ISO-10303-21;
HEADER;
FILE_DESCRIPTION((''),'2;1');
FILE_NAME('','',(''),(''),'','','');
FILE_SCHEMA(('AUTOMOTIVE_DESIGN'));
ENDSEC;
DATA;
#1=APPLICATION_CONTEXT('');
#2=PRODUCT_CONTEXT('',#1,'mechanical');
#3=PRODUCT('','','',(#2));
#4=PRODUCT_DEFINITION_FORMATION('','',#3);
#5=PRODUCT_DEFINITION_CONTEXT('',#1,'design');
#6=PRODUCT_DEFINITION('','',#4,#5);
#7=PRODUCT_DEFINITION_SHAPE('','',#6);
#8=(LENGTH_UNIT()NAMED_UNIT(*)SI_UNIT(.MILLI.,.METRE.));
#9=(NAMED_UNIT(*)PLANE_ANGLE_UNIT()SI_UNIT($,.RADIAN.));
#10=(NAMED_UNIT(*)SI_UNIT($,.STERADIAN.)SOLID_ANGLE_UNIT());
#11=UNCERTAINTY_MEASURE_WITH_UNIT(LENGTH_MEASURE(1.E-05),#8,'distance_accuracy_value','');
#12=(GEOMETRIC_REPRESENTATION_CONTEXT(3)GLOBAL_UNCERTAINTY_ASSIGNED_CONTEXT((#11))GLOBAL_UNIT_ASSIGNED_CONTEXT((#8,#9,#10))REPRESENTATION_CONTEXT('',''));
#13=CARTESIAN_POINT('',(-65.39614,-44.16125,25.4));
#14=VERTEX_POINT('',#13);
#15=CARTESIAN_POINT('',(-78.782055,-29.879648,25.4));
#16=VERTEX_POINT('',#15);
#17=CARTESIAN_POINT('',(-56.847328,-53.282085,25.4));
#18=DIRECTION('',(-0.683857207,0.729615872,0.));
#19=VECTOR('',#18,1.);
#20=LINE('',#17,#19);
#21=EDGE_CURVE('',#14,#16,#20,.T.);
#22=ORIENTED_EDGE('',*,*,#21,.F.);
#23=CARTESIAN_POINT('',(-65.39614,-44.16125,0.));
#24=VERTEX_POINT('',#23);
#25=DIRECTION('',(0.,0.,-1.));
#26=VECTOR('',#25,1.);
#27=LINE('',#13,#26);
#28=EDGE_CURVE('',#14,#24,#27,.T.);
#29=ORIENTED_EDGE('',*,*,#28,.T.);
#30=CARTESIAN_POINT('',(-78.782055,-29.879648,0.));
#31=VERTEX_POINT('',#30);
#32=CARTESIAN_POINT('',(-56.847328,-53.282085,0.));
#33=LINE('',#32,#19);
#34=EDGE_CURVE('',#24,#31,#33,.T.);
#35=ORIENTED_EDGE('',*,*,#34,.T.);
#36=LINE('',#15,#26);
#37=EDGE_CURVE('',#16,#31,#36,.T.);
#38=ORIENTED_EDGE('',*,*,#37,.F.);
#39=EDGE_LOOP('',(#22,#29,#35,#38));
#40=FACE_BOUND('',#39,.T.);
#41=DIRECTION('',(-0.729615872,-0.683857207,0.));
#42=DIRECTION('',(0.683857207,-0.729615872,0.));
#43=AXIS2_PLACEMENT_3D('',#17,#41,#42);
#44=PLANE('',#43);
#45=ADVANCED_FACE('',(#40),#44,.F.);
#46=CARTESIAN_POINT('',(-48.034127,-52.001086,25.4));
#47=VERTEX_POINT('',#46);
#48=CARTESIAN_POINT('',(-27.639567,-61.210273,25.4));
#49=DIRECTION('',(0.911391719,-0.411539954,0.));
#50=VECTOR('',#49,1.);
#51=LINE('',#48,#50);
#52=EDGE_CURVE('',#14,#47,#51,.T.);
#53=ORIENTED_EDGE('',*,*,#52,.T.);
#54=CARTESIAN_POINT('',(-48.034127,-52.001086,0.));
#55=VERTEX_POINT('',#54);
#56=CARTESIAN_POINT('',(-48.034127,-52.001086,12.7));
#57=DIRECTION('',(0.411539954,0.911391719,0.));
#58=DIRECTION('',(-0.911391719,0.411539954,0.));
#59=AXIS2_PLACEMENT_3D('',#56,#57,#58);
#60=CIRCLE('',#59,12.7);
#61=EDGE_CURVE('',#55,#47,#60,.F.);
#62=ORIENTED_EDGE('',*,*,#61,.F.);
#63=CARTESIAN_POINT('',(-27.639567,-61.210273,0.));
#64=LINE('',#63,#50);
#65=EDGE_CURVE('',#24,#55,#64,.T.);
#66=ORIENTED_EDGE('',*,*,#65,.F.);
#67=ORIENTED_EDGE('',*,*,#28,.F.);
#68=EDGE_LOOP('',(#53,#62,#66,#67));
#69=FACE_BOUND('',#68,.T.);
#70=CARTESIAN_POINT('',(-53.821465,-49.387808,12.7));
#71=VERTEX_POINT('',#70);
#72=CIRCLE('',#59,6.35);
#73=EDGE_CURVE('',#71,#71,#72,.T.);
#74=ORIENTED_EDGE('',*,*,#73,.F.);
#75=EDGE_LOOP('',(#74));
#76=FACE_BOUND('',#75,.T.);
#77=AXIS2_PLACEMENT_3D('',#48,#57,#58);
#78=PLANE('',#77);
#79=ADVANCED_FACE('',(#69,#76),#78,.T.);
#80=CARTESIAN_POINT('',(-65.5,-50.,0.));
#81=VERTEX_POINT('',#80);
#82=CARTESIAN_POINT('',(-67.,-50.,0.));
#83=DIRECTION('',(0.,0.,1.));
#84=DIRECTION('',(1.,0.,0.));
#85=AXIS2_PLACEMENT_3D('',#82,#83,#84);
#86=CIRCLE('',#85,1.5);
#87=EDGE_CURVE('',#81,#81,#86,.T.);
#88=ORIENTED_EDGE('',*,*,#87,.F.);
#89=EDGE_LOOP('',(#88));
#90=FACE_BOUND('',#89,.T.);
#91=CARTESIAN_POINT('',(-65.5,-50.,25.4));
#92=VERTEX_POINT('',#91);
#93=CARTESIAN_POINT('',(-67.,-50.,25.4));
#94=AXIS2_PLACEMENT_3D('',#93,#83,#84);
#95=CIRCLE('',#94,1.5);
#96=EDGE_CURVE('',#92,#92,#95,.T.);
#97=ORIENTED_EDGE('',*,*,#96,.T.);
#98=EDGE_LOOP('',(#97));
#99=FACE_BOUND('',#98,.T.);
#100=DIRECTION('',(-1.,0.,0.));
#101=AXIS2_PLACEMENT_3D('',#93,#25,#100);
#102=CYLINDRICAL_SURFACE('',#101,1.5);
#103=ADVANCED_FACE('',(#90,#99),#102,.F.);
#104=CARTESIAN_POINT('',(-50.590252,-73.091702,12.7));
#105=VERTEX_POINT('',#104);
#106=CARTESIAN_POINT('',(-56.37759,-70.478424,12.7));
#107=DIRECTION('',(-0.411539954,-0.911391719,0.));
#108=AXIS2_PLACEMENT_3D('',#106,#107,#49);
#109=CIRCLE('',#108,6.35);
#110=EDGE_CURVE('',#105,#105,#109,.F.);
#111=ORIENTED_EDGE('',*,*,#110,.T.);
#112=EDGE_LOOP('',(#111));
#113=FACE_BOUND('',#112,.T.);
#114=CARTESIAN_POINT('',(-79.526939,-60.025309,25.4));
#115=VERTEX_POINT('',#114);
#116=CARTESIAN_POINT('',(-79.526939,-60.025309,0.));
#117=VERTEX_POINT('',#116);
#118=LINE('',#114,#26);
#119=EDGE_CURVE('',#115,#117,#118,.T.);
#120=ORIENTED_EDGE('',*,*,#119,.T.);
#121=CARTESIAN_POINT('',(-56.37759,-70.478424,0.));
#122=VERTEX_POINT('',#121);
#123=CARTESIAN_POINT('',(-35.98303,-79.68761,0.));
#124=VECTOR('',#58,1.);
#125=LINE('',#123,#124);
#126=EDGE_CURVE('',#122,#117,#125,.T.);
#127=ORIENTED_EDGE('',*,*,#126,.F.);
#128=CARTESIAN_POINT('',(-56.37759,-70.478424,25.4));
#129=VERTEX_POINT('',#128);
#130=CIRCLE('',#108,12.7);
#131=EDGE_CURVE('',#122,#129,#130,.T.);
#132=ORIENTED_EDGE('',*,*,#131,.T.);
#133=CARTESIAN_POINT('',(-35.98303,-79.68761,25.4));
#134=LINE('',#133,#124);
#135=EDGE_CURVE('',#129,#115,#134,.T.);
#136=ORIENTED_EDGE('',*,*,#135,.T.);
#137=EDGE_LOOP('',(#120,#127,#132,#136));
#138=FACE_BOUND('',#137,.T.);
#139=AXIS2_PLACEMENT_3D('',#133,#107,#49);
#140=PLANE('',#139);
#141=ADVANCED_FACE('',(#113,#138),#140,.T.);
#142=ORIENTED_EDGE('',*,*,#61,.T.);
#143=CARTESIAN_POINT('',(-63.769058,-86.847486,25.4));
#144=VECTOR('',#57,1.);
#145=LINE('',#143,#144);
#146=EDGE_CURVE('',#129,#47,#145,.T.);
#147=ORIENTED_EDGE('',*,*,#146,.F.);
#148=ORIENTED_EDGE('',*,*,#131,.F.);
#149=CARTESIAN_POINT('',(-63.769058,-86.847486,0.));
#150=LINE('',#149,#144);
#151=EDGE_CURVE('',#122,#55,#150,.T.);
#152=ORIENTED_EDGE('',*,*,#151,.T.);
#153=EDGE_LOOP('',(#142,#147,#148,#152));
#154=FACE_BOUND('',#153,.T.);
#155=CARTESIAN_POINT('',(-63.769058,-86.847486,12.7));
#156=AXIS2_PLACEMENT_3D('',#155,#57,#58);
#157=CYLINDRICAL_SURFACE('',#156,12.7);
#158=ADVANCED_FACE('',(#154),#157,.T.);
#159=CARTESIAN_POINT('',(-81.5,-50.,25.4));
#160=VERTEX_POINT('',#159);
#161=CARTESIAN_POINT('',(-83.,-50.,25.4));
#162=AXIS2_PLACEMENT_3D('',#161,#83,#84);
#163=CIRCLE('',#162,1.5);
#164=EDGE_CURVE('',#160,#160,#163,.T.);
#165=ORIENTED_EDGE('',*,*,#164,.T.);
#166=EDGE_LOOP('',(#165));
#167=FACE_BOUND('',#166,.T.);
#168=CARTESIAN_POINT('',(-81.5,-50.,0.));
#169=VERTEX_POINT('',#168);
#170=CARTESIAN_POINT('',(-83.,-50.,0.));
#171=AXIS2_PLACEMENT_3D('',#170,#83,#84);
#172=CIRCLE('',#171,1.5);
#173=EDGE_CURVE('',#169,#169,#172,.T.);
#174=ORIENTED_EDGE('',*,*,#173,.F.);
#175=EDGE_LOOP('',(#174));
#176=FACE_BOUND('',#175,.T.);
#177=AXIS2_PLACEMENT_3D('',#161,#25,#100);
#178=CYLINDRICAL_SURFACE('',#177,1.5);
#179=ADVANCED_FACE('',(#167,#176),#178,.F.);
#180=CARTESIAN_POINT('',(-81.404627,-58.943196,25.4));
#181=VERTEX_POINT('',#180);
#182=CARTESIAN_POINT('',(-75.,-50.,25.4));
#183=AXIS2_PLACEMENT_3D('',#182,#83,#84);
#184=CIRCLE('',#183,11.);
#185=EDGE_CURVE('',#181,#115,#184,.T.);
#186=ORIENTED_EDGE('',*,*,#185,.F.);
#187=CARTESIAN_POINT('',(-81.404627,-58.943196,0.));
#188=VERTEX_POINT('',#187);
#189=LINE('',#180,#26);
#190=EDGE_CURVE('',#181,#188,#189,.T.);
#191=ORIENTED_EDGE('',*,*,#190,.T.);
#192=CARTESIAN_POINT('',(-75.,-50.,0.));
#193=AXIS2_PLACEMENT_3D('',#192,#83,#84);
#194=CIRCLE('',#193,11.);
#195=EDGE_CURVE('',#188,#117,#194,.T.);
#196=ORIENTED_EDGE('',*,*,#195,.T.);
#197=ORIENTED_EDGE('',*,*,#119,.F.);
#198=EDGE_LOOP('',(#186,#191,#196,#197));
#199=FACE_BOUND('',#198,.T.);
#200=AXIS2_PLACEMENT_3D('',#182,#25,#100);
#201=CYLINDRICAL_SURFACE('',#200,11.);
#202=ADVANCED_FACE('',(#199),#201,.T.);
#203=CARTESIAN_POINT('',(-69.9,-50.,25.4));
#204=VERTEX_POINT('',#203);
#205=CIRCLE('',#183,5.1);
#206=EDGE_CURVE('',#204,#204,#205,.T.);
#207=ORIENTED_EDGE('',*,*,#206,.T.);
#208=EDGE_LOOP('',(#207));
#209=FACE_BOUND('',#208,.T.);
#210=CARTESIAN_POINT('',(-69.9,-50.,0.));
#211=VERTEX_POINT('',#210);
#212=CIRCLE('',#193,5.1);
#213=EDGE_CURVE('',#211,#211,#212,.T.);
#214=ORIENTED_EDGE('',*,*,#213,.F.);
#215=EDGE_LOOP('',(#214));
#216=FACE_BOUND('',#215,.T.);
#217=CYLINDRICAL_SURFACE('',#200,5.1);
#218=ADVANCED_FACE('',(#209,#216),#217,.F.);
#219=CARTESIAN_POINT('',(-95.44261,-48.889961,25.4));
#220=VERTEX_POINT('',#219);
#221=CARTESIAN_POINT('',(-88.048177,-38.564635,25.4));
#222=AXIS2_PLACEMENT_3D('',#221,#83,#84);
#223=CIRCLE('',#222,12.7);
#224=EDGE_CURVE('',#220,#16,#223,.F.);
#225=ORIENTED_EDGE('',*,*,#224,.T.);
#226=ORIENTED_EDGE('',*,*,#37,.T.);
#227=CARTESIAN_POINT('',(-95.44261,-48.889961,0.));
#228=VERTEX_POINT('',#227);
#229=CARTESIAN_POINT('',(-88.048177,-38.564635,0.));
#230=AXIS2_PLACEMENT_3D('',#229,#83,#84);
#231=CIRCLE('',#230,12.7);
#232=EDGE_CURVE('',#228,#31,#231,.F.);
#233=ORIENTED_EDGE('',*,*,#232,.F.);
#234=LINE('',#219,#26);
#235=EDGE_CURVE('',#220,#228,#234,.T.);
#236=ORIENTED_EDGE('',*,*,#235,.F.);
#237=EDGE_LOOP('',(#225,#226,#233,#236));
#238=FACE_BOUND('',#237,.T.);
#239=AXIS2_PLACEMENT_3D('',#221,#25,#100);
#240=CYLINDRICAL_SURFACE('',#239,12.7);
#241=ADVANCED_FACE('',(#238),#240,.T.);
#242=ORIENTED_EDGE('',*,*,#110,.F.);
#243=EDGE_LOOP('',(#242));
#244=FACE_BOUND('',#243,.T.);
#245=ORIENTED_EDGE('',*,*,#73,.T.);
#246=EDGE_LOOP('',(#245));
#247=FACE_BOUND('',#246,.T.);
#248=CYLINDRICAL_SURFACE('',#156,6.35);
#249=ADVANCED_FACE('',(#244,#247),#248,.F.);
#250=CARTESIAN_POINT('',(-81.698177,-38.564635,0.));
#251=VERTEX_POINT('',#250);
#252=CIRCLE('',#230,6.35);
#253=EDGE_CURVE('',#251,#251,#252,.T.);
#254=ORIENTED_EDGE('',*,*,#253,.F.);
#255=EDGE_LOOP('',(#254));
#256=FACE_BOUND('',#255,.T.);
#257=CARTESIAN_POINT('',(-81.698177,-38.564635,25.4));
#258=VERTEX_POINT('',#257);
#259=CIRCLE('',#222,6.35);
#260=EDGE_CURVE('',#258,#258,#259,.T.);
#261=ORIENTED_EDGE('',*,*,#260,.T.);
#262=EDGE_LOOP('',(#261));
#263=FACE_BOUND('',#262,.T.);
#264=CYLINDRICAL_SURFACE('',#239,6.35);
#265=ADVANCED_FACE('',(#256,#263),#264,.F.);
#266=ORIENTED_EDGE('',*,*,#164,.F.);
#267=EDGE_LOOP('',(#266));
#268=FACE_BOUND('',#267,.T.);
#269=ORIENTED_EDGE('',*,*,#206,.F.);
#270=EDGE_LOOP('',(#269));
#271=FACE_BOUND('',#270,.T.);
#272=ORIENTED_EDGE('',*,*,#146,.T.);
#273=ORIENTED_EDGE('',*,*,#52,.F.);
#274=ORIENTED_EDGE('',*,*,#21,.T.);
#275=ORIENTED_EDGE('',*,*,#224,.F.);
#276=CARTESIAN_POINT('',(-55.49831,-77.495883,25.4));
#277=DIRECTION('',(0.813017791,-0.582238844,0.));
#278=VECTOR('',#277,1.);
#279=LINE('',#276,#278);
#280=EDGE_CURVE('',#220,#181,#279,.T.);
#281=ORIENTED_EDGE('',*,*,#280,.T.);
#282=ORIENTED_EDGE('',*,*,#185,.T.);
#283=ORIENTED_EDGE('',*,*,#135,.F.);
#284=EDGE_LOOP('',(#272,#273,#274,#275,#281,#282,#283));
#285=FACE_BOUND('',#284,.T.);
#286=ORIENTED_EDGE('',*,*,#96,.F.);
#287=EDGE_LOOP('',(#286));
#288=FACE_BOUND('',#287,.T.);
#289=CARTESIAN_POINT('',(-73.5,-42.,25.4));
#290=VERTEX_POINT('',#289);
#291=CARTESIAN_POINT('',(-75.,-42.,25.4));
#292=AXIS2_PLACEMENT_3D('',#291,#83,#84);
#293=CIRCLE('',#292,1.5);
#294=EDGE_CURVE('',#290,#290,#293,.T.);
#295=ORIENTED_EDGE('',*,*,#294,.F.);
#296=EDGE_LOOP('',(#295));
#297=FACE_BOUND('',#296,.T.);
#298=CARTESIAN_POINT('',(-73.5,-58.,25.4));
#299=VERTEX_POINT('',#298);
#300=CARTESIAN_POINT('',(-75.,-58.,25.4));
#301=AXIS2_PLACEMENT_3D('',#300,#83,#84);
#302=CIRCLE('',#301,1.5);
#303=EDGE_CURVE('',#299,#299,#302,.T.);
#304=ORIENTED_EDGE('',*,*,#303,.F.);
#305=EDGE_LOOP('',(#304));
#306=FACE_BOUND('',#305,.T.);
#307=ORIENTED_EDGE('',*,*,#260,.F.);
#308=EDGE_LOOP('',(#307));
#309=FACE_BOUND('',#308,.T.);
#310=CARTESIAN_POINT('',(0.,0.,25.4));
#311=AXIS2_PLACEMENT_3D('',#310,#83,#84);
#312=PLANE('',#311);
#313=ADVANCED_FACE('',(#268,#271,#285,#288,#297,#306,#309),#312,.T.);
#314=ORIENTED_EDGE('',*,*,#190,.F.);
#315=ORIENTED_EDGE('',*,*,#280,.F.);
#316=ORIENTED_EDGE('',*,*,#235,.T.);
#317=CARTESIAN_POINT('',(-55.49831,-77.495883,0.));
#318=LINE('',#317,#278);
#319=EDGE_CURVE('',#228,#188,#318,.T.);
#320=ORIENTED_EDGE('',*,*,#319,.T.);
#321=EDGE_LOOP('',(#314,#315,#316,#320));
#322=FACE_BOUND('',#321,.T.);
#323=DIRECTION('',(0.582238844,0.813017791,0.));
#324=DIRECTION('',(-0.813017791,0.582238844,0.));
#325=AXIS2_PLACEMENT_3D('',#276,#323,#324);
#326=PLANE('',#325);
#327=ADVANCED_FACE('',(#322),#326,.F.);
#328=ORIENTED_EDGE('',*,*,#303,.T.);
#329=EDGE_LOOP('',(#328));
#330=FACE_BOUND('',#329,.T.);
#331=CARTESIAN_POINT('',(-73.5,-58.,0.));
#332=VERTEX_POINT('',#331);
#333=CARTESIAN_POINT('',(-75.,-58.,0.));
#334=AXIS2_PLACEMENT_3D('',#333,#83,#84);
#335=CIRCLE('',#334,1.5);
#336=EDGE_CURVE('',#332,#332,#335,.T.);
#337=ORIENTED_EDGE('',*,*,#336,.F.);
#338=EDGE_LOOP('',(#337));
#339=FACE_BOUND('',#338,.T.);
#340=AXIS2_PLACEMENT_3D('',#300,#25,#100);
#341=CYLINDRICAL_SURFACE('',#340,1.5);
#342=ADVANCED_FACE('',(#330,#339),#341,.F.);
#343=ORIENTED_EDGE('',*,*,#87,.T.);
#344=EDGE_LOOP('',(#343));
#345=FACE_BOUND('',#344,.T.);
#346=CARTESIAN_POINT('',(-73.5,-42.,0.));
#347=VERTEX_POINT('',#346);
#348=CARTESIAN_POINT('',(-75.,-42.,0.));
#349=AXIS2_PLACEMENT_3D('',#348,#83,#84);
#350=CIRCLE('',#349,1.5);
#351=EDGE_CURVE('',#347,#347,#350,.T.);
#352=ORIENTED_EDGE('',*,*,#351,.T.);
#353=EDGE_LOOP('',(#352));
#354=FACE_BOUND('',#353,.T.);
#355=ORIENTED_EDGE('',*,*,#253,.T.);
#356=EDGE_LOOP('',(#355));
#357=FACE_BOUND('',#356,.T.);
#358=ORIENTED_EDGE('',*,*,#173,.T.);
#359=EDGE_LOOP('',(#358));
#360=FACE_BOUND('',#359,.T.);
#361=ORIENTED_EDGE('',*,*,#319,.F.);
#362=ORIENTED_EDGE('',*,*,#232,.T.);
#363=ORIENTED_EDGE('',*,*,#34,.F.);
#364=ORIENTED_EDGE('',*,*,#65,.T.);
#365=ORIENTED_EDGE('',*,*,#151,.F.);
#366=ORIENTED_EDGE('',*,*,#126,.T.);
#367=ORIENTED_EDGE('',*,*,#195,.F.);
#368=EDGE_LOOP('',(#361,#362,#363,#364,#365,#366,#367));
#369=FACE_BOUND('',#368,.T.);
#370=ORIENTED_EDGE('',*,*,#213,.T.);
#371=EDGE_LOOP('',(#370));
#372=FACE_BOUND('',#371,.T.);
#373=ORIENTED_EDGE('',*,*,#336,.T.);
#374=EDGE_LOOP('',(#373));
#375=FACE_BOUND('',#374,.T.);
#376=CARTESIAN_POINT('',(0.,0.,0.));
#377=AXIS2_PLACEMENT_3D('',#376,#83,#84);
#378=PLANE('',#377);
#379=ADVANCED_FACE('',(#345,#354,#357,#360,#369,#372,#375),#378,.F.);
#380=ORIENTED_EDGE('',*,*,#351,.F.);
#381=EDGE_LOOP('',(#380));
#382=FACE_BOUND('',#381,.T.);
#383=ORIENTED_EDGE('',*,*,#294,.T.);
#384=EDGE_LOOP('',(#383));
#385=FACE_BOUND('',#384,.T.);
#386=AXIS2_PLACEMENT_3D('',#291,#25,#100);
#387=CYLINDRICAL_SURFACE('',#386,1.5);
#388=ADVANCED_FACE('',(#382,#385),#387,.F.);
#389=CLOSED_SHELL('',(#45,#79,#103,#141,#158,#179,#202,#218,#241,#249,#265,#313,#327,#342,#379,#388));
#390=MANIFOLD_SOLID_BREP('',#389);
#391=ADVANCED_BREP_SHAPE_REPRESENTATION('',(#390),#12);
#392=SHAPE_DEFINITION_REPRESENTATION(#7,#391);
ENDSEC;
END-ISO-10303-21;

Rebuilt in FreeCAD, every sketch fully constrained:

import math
import FreeCAD as App
import Part
import Sketcher
from FreeCAD import Vector
Q = App.Units.Quantity

doc = App.newDocument("Part")
body = doc.addObject("PartDesign::Body", "Body")

# Sketch on XY plane
sketch1 = doc.addObject("Sketcher::SketchObject", "Sketch")
body.addObject(sketch1)
sketch1.AttachmentSupport = (doc.XY_Plane, [""])
sketch1.MapMode = "FlatFace"
sketch1.addGeometry(Part.LineSegment(Vector(-36.5, -57.2, 0), Vector(-65.4, -44.2, 0)), False)
sketch1.addGeometry(Part.LineSegment(Vector(-65.4, -44.2, 0), Vector(-78.8, -29.9, 0)), False)
sketch1.addGeometry(Part.ArcOfCircle(Part.Circle(Vector(-88, -38.6, 0), Vector(0, 0, 1), 12.7), math.radians(43), math.radians(234)), False)
sketch1.addGeometry(Part.LineSegment(Vector(-95.4, -48.9, 0), Vector(-81.4, -58.9, 0)), False)
sketch1.addGeometry(Part.ArcOfCircle(Part.Circle(Vector(-75, -50, 0), Vector(0, 0, 1), 11), math.radians(-125.61), math.radians(-114.3)), False)
sketch1.addGeometry(Part.LineSegment(Vector(-79.5, -60, 0), Vector(-44.8, -75.7, 0)), False)
sketch1.addGeometry(Part.LineSegment(Vector(-44.8, -75.7, 0), Vector(-36.5, -57.2, 0)), False)
sketch1.addGeometry(Part.Circle(Vector(-83, -50, 0), Vector(0, 0, 1), 1.5), False)
sketch1.addGeometry(Part.Circle(Vector(-75, -58, 0), Vector(0, 0, 1), 1.5), False)
sketch1.addGeometry(Part.Circle(Vector(-75, -50, 0), Vector(0, 0, 1), 5.1), False)
sketch1.addGeometry(Part.Circle(Vector(-67, -50, 0), Vector(0, 0, 1), 1.5), False)
sketch1.addGeometry(Part.ArcOfCircle(Part.Circle(Vector(-88, -38.6, 0), Vector(0, 0, 1), 6.3), math.radians(0), math.radians(319)), False)
sketch1.addGeometry(Part.ArcOfCircle(Part.Circle(Vector(-88, -38.6, 0), Vector(0, 0, 1), 6.4), math.radians(-41), math.radians(0)), False)
sketch1.addGeometry(Part.Circle(Vector(-75, -42, 0), Vector(0, 0, 1), 1.5), False)
sketch1.addConstraint(Sketcher.Constraint("Coincident", 0, 2, 1, 1))
sketch1.addConstraint(Sketcher.Constraint("Tangent", 1, 2, 2, 1))
sketch1.addConstraint(Sketcher.Constraint("Tangent", 2, 2, 3, 1))
sketch1.addConstraint(Sketcher.Constraint("Tangent", 3, 2, 4, 1))
sketch1.addConstraint(Sketcher.Constraint("Tangent", 4, 2, 5, 1))
sketch1.addConstraint(Sketcher.Constraint("Coincident", 5, 2, 6, 1))
sketch1.addConstraint(Sketcher.Constraint("Coincident", 6, 2, 0, 1))
sketch1.addConstraint(Sketcher.Constraint("Tangent", 11, 1, 12, 2))
sketch1.addConstraint(Sketcher.Constraint("Coincident", 12, 1, 11, 2))
sketch1.addConstraint(Sketcher.Constraint("Coincident", 9, 3, 4, 3))
sketch1.addConstraint(Sketcher.Constraint("Coincident", 11, 3, 2, 3))
sketch1.addConstraint(Sketcher.Constraint("Equal", 7, 8))
sketch1.addConstraint(Sketcher.Constraint("Equal", 8, 10))
sketch1.addConstraint(Sketcher.Constraint("Equal", 10, 13))
sketch1.addConstraint(Sketcher.Constraint("Parallel", 0, 5))
sketch1.addConstraint(Sketcher.Constraint("Perpendicular", 5, 6))
sketch1.addConstraint(Sketcher.Constraint("Horizontal", 4, 3, 7, 3))
sketch1.addConstraint(Sketcher.Constraint("Horizontal", 9, 3, 10, 3))
sketch1.addConstraint(Sketcher.Constraint("Horizontal", 12, 3, 11, 1))
sketch1.addConstraint(Sketcher.Constraint("Vertical", 4, 3, 8, 3))
sketch1.addConstraint(Sketcher.Constraint("Vertical", 9, 3, 13, 3))
sketch1.addConstraint(Sketcher.Constraint("Radius", 2, Q("0.5 in")))
sketch1.addConstraint(Sketcher.Constraint("Radius", 11, Q("0.25 in")))
sketch1.addConstraint(Sketcher.Constraint("Distance", 5, Q("1.5 in")))
sketch1.addConstraint(Sketcher.Constraint("Distance", 0, Q("1.25 in")))
sketch1.addConstraint(Sketcher.Constraint("Diameter", 7, Q("3 mm")))
sketch1.addConstraint(Sketcher.Constraint("Diameter", 9, Q("10.2 mm")))
sketch1.addConstraint(Sketcher.Constraint("Radius", 4, Q("11 mm")))
sketch1.addConstraint(Sketcher.Constraint("DistanceX", 1, 2, 13, 3, Q("0.1488998 in")))
sketch1.addConstraint(Sketcher.Constraint("DistanceX", 4, 3, -1, 1, Q("75 mm")))
sketch1.addConstraint(Sketcher.Constraint("DistanceY", 4, 3, -1, 1, Q("50 mm")))
sketch1.addConstraint(Sketcher.Constraint("DistanceX", 7, 3, -1, 1, Q("83 mm")))
sketch1.addConstraint(Sketcher.Constraint("DistanceY", 8, 3, -1, 1, Q("58 mm")))
sketch1.addConstraint(Sketcher.Constraint("DistanceX", 10, 3, -1, 1, Q("67 mm")))
sketch1.addConstraint(Sketcher.Constraint("DistanceY", 13, 3, -1, 1, Q("42 mm")))
sketch1.addConstraint(Sketcher.Constraint("Distance", 1, Q("19.574138 mm")))
sketch1.addConstraint(Sketcher.Constraint("Distance", 6, Q("20.27376 mm")))
sketch1.addConstraint(Sketcher.Constraint("DistanceX", 0, 2, -1, 1, Q("65.39614 mm")))
sketch1.addConstraint(Sketcher.Constraint("DistanceX", 12, 1, -1, 1, Q("83.272619 mm")))
pad1 = doc.addObject("PartDesign::Pad", "Pad")
body.addObject(pad1)
pad1.Profile = sketch1
pad1.Length = Q("1 in")

# Sketch on an angled plane
sketch2 = doc.addObject("Sketcher::SketchObject", "Sketch001")
body.addObject(sketch2)
sketch2.Placement = App.Placement(Vector(-27.639567, -61.210273, 0), App.Rotation(Vector(0.911391719, -0.411539954, 0), Vector(0, 0, -0.999999999), Vector(0.411539954, 0.911391719, 0), "ZXY"))
sketch2.addGeometry(Part.ArcOfCircle(Part.Circle(Vector(-22, -13, 0), Vector(0, 0, 1), 13), math.radians(0), math.radians(90)), False)
sketch2.addGeometry(Part.LineSegment(Vector(-10, -13, 0), Vector(-10, 0, 0)), False)
sketch2.addGeometry(Part.LineSegment(Vector(-10, 0, 0), Vector(-22, 0, 0)), False)
sketch2.addGeometry(Part.ArcOfCircle(Part.Circle(Vector(-22, -13, 0), Vector(0, 0, 1), 13), math.radians(-90), math.radians(0)), False)
sketch2.addGeometry(Part.LineSegment(Vector(-22, -25, 0), Vector(-10, -25, 0)), False)
sketch2.addGeometry(Part.LineSegment(Vector(-10, -25, 0), Vector(-10, -13, 0)), False)
sketch2.addGeometry(Part.Circle(Vector(-22, -13, 0), Vector(0, 0, 1), 6), False)
sketch2.addConstraint(Sketcher.Constraint("Tangent", 0, 1, 1, 1))
sketch2.addConstraint(Sketcher.Constraint("Coincident", 1, 2, 2, 1))
sketch2.addConstraint(Sketcher.Constraint("Tangent", 2, 2, 0, 2))
sketch2.addConstraint(Sketcher.Constraint("Tangent", 3, 1, 4, 1))
sketch2.addConstraint(Sketcher.Constraint("Coincident", 4, 2, 5, 1))
sketch2.addConstraint(Sketcher.Constraint("Tangent", 5, 2, 3, 2))
sketch2.addConstraint(Sketcher.Constraint("Vertical", 1))
sketch2.addConstraint(Sketcher.Constraint("Horizontal", 2))
sketch2.addConstraint(Sketcher.Constraint("Horizontal", 4))
sketch2.addConstraint(Sketcher.Constraint("Vertical", 5))
sketch2.addConstraint(Sketcher.Constraint("Coincident", 3, 3, 0, 3))
sketch2.addConstraint(Sketcher.Constraint("Coincident", 6, 3, 0, 3))
sketch2.addConstraint(Sketcher.Constraint("Equal", 0, 3))
sketch2.addConstraint(Sketcher.Constraint("PointOnObject", 1, 2, -1))
sketch2.addConstraint(Sketcher.Constraint("Diameter", 6, Q("0.5 in")))
sketch2.addConstraint(Sketcher.Constraint("Radius", 0, Q("0.5 in")))
sketch2.addConstraint(Sketcher.Constraint("DistanceX", 0, 3, -1, 1, Q("22.377381 mm")))
pocket1 = doc.addObject("PartDesign::Pocket", "Pocket")
body.addObject(pocket1)
pocket1.Profile = sketch2
pocket1.Length = 20.27376

doc.recompute()
